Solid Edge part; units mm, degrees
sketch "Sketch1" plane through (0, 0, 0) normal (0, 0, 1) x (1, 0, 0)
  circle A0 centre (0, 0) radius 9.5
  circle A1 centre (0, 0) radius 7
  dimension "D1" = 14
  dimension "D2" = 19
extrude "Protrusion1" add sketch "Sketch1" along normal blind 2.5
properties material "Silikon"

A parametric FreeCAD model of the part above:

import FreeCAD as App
import Part
import Sketcher
from FreeCAD import Vector
Q = App.Units.Quantity

doc = App.newDocument("Part")
body = doc.addObject("PartDesign::Body", "Body")

sketch1 = body.newObject("Sketcher::SketchObject", "Sketch")
sketch1.AttachmentSupport = (doc.getObject("XY_Plane"), [""])
sketch1.MapMode = "FlatFace"
sketch1.addGeometry([
    Part.Circle(Vector(0, 0, 0), Vector(0, 0, 1), 10),
    Part.Circle(Vector(0, 0, 0), Vector(0, 0, 1), 7),
], False)
sketch1.addConstraint([
    Sketcher.Constraint("Coincident", 0, 3, -1, 1),
    Sketcher.Constraint("Coincident", 1, 3, -1, 1),
    Sketcher.Constraint("Diameter", 0, Q("19 mm")),
    Sketcher.Constraint("Diameter", 1, Q("14 mm")),
])
pad1 = body.newObject("PartDesign::Pad", "Pad")
pad1.Profile = sketch1
pad1.Length = 2.5

doc.recompute()
